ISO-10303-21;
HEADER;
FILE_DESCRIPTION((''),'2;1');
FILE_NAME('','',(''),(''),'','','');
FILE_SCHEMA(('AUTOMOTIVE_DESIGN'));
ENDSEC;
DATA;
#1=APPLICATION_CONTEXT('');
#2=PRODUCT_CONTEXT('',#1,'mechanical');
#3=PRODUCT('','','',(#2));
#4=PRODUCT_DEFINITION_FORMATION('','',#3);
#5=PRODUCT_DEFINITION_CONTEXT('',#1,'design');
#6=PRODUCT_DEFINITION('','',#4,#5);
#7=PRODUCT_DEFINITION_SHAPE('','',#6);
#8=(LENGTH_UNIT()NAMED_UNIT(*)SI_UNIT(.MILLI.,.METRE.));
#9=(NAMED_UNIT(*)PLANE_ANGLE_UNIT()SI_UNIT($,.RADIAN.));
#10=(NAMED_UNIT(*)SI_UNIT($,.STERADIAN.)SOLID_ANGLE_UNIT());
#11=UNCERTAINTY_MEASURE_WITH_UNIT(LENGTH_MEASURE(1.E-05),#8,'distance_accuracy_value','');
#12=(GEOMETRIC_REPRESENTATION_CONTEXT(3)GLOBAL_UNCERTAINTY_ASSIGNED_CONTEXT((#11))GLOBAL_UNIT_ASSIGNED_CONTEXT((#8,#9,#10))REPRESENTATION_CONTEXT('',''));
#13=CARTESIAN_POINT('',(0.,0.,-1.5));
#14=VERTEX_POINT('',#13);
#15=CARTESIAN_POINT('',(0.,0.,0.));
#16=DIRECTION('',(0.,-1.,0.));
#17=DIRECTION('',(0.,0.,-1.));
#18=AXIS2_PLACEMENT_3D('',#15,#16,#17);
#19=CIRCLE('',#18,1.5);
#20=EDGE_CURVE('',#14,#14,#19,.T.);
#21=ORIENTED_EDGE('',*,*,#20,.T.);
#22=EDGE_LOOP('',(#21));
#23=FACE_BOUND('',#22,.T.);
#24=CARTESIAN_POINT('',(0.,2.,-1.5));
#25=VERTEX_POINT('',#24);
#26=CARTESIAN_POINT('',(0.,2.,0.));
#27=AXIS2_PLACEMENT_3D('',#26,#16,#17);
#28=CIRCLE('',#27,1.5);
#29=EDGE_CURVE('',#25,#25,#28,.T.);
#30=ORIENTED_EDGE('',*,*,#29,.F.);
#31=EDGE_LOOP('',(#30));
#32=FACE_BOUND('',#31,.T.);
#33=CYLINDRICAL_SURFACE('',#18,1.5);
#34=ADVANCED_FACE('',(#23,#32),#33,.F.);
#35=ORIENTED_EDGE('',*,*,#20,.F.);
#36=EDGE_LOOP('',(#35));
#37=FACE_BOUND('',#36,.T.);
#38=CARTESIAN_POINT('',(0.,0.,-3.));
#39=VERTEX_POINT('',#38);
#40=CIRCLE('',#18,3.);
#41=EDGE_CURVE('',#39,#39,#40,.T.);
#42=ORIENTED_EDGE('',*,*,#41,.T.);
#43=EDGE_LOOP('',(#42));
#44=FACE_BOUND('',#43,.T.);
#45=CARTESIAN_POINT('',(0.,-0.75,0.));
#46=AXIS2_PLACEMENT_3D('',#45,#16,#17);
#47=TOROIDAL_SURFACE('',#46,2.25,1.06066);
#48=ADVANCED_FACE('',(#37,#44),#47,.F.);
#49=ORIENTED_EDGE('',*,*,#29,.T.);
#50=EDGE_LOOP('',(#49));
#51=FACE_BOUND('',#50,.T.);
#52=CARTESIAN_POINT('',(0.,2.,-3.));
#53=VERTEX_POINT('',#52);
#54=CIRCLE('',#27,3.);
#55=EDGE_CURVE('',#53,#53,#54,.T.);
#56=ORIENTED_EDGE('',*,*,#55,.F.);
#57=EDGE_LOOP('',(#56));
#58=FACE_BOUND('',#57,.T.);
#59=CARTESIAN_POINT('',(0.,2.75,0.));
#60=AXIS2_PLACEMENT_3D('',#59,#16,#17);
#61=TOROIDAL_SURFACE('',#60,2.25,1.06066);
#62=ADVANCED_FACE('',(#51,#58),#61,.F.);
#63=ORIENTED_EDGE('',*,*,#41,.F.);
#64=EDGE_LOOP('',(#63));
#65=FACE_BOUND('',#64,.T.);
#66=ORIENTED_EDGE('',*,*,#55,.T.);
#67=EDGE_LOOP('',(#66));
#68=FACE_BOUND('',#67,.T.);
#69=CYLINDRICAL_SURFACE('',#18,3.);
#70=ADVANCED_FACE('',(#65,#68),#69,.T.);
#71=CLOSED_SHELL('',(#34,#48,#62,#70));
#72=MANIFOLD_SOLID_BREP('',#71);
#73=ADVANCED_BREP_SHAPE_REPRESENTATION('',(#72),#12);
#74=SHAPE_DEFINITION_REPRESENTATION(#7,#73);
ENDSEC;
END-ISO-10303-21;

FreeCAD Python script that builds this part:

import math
import FreeCAD as App
import Part
import Sketcher
Q = App.Units.Quantity

doc = App.newDocument("Part")
params = doc.addObject("Spreadsheet::Sheet", "Params")
for row, (alias, value) in enumerate([
    ("sketch1_height", "2 mm"),
    ("revolution_angle", "360 deg"),
], start=1):
    params.set(f"A{row}", alias)
    params.set(f"B{row}", "=" + value)
    params.setAlias(f"B{row}", alias)

body = doc.addObject("PartDesign::Body", "Body")

# Sketch on XY plane
sketch1 = doc.addObject("Sketcher::SketchObject", "Sketch")
body.addObject(sketch1)
sketch1.AttachmentSupport = (doc.XY_Plane, [""])
sketch1.MapMode = "FlatFace"
sketch1.addGeometry(Part.LineSegment(App.Vector(1.5, 2, 0), App.Vector(1.5, 0, 0)), False)
sketch1.addGeometry(Part.ArcOfCircle(Part.Circle(App.Vector(2.2, -0.7, 0), App.Vector(0, 0, 1), 1.1), math.radians(45), math.radians(135)), False)
sketch1.addGeometry(Part.LineSegment(App.Vector(3, 0, 0), App.Vector(3, 2, 0)), False)
sketch1.addGeometry(Part.ArcOfCircle(Part.Circle(App.Vector(2.2, 2.7, 0), App.Vector(0, 0, 1), 1.1), math.radians(-135), math.radians(-45)), False)
sketch1.addConstraint(Sketcher.Constraint("Coincident", 0, 2, 1, 2))
sketch1.addConstraint(Sketcher.Constraint("Coincident", 1, 1, 2, 1))
sketch1.addConstraint(Sketcher.Constraint("Coincident", 2, 2, 3, 2))
sketch1.addConstraint(Sketcher.Constraint("Coincident", 3, 1, 0, 1))
sketch1.addConstraint(Sketcher.Constraint("Vertical", 0))
sketch1.addConstraint(Sketcher.Constraint("Vertical", 2))
sketch1.addConstraint(Sketcher.Constraint("Equal", 1, 3))
sketch1.addConstraint(Sketcher.Constraint("PointOnObject", 0, 2, -1))
sketch1.addConstraint(Sketcher.Constraint("PointOnObject", 1, 1, -1))
sketch1.addConstraint(Sketcher.Constraint("Horizontal", 2, 2, 3, 1))
sketch1.addConstraint(Sketcher.Constraint("DistanceY", 0, 2, 0, 1, Q("2 mm")))
sketch1.addConstraint(Sketcher.Constraint("DistanceX", -1, 1, 1, 1, Q("3 mm")))
sketch1.addConstraint(Sketcher.Constraint("DistanceX", -1, 1, 0, 2, Q("1.5 mm")))
sketch1.addConstraint(Sketcher.Constraint("DistanceY", 1, 3, 3, 3, Q("3.5 mm")))
sketch1.setExpression("Constraints[10]", "Params.sketch1_height")
revolution = doc.addObject("PartDesign::Revolution", "Revolution")
body.addObject(revolution)
revolution.Profile = sketch1
revolution.ReferenceAxis = (sketch1, ["V_Axis"])
revolution.setExpression("Angle", "Params.revolution_angle")

doc.recompute()
